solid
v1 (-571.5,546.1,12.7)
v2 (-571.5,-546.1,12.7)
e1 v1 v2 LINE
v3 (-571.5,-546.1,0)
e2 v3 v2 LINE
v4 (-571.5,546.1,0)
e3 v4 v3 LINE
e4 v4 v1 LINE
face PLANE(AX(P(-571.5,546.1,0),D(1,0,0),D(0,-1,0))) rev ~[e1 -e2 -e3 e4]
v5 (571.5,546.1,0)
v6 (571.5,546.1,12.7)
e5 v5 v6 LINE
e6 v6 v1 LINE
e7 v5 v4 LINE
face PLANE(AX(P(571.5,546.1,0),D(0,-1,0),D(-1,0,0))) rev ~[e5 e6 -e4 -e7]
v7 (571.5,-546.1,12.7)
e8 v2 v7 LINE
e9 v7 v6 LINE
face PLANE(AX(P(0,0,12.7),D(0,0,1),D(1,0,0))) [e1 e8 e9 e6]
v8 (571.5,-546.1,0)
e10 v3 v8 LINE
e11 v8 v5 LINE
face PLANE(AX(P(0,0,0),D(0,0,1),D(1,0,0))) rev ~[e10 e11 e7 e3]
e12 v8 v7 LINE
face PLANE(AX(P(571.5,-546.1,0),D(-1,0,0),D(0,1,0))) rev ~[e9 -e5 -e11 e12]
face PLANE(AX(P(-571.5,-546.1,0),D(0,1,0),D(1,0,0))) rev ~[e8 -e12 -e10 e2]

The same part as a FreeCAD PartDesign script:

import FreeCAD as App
import Part
import Sketcher
Q = App.Units.Quantity

doc = App.newDocument("Part")
body = doc.addObject("PartDesign::Body", "Body")

# Sketch on XY plane
sketch1 = body.newObject("Sketcher::SketchObject", "Sketch")
sketch1.AttachmentSupport = (doc.getObject("XY_Plane"), [""])
sketch1.MapMode = "FlatFace"
sketch1.addGeometry([
    Part.LineSegment(App.Vector(-571.5, 546.1, 0), App.Vector(-571.5, -546.1, 0)),
    Part.LineSegment(App.Vector(-571.5, -546.1, 0), App.Vector(571.5, -546.1, 0)),
    Part.LineSegment(App.Vector(571.5, -546.1, 0), App.Vector(571.5, 546.1, 0)),
    Part.LineSegment(App.Vector(571.5, 546.1, 0), App.Vector(-571.5, 546.1, 0)),
], False)
sketch1.addConstraint([
    Sketcher.Constraint("Coincident", 0, 2, 1, 1),
    Sketcher.Constraint("Coincident", 1, 2, 2, 1),
    Sketcher.Constraint("Coincident", 2, 2, 3, 1),
    Sketcher.Constraint("Coincident", 3, 2, 0, 1),
    Sketcher.Constraint("Vertical", 0),
    Sketcher.Constraint("Horizontal", 1),
    Sketcher.Constraint("Vertical", 2),
    Sketcher.Constraint("Horizontal", 3),
    Sketcher.Constraint("Symmetric", 0, 2, 2, 2, -1, 1),
    Sketcher.Constraint("DistanceX", 1, 1, 1, 2, Q("45 in")),
    Sketcher.Constraint("DistanceY", 0, 2, 0, 1, Q("43 in")),
])
pad1 = body.newObject("PartDesign::Pad", "Pad")
pad1.Profile = sketch1
pad1.Length = Q("0.5 in")

doc.recompute()
